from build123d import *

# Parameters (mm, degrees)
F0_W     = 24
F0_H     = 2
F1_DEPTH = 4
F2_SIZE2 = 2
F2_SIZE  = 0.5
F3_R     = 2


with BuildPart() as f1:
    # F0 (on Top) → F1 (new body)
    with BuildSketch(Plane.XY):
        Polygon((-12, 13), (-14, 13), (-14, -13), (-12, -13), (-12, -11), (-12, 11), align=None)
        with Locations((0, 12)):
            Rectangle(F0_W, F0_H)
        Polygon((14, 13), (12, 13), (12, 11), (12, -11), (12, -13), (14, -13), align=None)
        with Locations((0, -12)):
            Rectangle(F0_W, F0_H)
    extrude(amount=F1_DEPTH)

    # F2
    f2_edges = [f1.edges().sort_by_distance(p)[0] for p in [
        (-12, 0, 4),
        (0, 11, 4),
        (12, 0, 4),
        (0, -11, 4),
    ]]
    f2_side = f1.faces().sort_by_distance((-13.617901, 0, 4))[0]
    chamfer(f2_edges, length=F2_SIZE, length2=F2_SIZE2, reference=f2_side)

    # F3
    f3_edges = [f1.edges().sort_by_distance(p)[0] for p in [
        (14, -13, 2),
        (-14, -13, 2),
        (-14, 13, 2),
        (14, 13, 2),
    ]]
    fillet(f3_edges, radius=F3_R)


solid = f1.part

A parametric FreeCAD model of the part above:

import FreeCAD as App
import Part
import Sketcher
Q = App.Units.Quantity


def edges_at(feature, points):
    """Names of the edges that pass closest to the given points."""
    edges = feature.Shape.Edges
    near = lambda p: min(range(len(edges)), key=lambda i: edges[i].distToShape(Part.Vertex(*p))[0])
    return sorted({f"Edge{near(p) + 1}" for p in points})


def add_polygon(sketch, points):
    """Adds a closed chain of lines whose ends are joined by coincident constraints."""
    first, n = sketch.GeometryCount, len(points)
    for a, b in zip(points, points[1:] + points[:1]):
        sketch.addGeometry(Part.LineSegment(App.Vector(*a, 0), App.Vector(*b, 0)), False)
    for i in range(n):
        sketch.addConstraint(Sketcher.Constraint("Coincident", first + i, 2, first + (i + 1) % n, 1))

doc = App.newDocument("Part")
body = doc.addObject("PartDesign::Body", "Body")

# Sketch on XY plane
sketch1 = doc.addObject("Sketcher::SketchObject", "Sketch")
body.addObject(sketch1)
sketch1.AttachmentSupport = (doc.XY_Plane, [""])
sketch1.MapMode = "FlatFace"
add_polygon(sketch1, [(-14, 13), (-14, -13), (14, -13), (14, 13)])  # lines 0-3
add_polygon(sketch1, [(-12, -11), (-12, 11), (12, 11), (12, -11)])  # lines 4-7
sketch1.addConstraint([
    Sketcher.Constraint("Vertical", 0),
    Sketcher.Constraint("Horizontal", 1),
    Sketcher.Constraint("Vertical", 2),
    Sketcher.Constraint("Horizontal", 3),
    Sketcher.Constraint("Vertical", 4),
    Sketcher.Constraint("Horizontal", 5),
    Sketcher.Constraint("Vertical", 6),
    Sketcher.Constraint("Horizontal", 7),
    Sketcher.Constraint("Symmetric", 0, 2, 2, 2, -1, 1),
    Sketcher.Constraint("Symmetric", 4, 2, 6, 2, -1, 1),
    Sketcher.Constraint("DistanceX", 1, 1, 1, 2, Q("28 mm")),
    Sketcher.Constraint("DistanceX", 5, 1, 5, 2, Q("24 mm")),
    Sketcher.Constraint("DistanceY", 0, 2, 0, 1, Q("26 mm")),
    Sketcher.Constraint("DistanceY", 4, 1, 4, 2, Q("22 mm")),
])
pad1 = doc.addObject("PartDesign::Pad", "Pad")
body.addObject(pad1)
pad1.Profile = sketch1
pad1.Length = 4
doc.recompute()

chamfer = doc.addObject("PartDesign::Chamfer", "Chamfer")
body.addObject(chamfer)
chamfer.Base = (pad1, edges_at(pad1, [
    (-12, 0, 4),
    (0, 11, 4),
    (12, 0, 4),
    (0, -11, 4),
]))
chamfer.ChamferType = "Two distances"
chamfer.Size = 0.5
chamfer.Size2 = 2
chamfer.FlipDirection = True
doc.recompute()

fillet = doc.addObject("PartDesign::Fillet", "Fillet")
body.addObject(fillet)
fillet.Base = (chamfer, edges_at(chamfer, [
    (14, -13, 2),
    (-14, -13, 2),
    (-14, 13, 2),
    (14, 13, 2),
]))
fillet.Radius = 2

doc.recompute()
